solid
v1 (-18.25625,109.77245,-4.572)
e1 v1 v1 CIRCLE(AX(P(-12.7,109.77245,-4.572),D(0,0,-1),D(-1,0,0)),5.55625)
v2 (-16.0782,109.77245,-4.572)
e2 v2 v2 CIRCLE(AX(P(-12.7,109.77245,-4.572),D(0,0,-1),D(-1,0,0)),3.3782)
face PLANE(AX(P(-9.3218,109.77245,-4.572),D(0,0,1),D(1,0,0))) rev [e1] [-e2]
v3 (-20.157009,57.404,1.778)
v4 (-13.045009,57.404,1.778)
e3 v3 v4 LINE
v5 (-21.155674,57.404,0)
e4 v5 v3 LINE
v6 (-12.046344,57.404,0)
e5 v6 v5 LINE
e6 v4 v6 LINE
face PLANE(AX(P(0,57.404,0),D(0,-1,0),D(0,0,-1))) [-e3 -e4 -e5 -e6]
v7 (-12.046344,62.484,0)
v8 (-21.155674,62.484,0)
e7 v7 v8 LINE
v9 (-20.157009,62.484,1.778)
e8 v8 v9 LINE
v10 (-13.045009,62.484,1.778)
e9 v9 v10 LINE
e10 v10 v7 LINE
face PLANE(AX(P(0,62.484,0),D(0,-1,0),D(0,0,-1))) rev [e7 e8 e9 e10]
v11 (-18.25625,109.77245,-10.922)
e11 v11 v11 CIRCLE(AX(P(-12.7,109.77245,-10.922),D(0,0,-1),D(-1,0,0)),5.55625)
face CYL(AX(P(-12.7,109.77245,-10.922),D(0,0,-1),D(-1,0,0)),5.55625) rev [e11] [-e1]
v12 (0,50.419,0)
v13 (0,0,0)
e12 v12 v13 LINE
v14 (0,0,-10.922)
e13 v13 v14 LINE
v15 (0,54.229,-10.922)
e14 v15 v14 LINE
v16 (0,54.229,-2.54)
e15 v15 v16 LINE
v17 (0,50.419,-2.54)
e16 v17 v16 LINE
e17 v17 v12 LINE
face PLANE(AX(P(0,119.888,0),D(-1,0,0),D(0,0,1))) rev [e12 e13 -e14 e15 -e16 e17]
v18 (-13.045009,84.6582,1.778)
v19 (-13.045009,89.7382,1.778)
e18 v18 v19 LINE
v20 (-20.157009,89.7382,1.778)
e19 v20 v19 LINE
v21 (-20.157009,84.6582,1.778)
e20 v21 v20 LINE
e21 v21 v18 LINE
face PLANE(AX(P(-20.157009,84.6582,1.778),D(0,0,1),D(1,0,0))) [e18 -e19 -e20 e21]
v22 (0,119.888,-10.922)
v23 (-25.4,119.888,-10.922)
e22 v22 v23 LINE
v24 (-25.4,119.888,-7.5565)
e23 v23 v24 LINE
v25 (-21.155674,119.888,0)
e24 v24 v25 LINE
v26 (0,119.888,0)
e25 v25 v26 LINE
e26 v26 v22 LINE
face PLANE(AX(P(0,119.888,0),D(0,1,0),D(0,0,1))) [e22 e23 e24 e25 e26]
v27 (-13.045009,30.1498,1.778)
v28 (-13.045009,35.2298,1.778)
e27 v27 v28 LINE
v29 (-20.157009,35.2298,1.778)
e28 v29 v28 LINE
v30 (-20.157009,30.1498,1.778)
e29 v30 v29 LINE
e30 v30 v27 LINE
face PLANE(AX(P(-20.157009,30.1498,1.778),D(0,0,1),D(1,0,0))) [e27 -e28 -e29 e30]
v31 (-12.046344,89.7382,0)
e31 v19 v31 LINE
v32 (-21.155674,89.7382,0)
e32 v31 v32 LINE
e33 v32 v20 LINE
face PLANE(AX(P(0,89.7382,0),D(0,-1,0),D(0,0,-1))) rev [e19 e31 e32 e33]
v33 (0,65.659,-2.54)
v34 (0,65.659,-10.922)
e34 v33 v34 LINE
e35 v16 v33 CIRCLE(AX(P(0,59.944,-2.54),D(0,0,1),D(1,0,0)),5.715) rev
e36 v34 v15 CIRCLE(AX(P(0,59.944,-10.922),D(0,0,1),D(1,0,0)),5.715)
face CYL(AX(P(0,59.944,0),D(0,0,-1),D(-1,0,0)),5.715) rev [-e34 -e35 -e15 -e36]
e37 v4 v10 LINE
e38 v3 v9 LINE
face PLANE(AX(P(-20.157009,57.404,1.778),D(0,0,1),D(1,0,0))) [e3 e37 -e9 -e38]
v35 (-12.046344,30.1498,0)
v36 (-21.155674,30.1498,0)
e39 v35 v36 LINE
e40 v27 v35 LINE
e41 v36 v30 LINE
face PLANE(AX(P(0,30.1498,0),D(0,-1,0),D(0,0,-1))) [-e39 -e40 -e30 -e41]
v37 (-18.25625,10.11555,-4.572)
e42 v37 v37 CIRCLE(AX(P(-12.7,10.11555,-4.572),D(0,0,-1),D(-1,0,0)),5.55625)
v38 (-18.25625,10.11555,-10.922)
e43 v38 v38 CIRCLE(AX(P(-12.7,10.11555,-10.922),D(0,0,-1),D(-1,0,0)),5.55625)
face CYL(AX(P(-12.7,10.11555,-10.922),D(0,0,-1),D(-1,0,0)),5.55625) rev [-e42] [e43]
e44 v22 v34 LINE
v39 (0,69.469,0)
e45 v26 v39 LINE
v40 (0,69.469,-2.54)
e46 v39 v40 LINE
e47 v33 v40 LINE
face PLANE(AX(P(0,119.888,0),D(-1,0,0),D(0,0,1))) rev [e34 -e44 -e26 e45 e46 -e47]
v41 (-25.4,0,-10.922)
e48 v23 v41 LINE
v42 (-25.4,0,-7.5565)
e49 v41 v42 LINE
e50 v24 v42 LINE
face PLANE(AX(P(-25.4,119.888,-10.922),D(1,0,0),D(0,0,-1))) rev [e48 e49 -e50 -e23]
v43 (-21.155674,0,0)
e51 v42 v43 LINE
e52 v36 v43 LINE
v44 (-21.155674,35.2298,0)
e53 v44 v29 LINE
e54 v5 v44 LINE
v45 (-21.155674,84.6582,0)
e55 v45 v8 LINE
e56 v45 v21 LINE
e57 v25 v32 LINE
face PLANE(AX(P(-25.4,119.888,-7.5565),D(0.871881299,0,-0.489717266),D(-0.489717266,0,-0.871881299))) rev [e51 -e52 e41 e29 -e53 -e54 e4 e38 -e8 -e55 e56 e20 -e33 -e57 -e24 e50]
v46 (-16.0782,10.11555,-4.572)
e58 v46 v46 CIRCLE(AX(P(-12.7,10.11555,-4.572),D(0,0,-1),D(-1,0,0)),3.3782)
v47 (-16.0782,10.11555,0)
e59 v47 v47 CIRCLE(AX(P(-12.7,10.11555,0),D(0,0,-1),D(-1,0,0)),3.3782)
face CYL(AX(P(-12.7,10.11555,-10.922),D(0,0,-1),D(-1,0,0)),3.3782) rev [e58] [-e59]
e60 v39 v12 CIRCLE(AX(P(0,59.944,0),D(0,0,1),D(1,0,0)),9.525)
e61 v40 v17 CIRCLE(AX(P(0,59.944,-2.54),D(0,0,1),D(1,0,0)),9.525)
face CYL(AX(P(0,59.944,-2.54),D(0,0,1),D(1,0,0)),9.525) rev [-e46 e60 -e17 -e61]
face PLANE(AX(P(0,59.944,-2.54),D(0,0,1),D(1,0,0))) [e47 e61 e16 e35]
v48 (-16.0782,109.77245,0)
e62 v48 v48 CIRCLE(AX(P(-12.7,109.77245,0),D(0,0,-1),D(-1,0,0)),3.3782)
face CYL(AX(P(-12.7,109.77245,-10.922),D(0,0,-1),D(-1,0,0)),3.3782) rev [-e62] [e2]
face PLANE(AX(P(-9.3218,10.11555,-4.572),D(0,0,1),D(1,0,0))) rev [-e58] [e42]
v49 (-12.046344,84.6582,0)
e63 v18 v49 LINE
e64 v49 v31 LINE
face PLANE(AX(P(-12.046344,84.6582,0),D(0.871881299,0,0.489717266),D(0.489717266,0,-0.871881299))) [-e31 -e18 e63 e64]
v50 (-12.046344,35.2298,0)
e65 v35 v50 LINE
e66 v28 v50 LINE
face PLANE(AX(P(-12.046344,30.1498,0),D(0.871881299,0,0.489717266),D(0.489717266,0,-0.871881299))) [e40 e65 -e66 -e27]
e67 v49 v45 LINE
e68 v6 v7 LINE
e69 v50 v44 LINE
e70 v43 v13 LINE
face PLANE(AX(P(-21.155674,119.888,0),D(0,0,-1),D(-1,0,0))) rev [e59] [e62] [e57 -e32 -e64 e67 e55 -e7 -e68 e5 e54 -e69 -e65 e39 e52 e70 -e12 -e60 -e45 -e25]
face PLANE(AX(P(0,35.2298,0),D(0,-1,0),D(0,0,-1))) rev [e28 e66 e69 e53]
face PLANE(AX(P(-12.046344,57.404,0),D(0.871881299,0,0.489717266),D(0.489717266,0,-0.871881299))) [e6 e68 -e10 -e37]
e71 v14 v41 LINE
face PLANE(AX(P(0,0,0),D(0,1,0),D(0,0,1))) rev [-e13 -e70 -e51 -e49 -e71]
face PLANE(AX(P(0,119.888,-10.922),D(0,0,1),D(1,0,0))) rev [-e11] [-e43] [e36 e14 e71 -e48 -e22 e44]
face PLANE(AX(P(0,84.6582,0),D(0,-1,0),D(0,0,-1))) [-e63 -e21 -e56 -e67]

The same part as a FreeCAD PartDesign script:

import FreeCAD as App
import Part
import Sketcher
Q = App.Units.Quantity


def add_polygon(sketch, points):
    """Adds a closed chain of lines whose ends are joined by coincident constraints."""
    first, n = sketch.GeometryCount, len(points)
    for a, b in zip(points, points[1:] + points[:1]):
        sketch.addGeometry(Part.LineSegment(App.Vector(*a, 0), App.Vector(*b, 0)), False)
    for i in range(n):
        sketch.addConstraint(Sketcher.Constraint("Coincident", first + i, 2, first + (i + 1) % n, 1))

doc = App.newDocument("Part")
params = doc.addObject("Spreadsheet::Sheet", "Params")
for row, (alias, value) in enumerate([
    ("sketch1_width", "1 in"),
    ("sketch1_height", "0.43 in"),
    ("pad1_length", "4.72 in"),
    ("sketch2_diameter", "0.266 in"),
    ("hole_diameter", "0.266 in"),
    ("hole_cbore_diameter", "0.4375 in"),
    ("hole_cbore_depth", "0.25 in"),
    ("sketch3_diameter", "0.45 in"),
    ("sketch4_width", "0.28 in"),
    ("pad2_length", "0.2 in"),
    ("linearpattern_pitch", "1.073 in"),
    ("linearpattern2_pitch", "1.073 in"),
    ("sketch5_diameter", "0.75 in"),
    ("pocket2_length", "0.1 in"),
], start=1):
    params.set(f"A{row}", alias)
    params.set(f"B{row}", "=" + value)
    params.setAlias(f"B{row}", alias)

body = doc.addObject("PartDesign::Body", "Body")

sketch1 = doc.addObject("Sketcher::SketchObject", "Sketch")
body.addObject(sketch1)
sketch1.AttachmentSupport = (doc.XZ_Plane, [""])
sketch1.MapMode = "FlatFace"
add_polygon(sketch1, [(0, 0), (0, -10.9), (-25.4, -10.9), (-25.4, -7.6), (-21.2, 0)])
sketch1.addConstraint([
    Sketcher.Constraint("Vertical", 0),
    Sketcher.Constraint("Horizontal", 1),
    Sketcher.Constraint("Vertical", 2),
    Sketcher.Constraint("Horizontal", 4),
    Sketcher.Constraint("Coincident", 4, 2, -1, 1),
    Sketcher.Constraint("DistanceX", 1, 2, 1, 1, Q("1 in")),
    Sketcher.Constraint("DistanceY", 0, 2, 0, 1, Q("0.43 in")),
    Sketcher.Constraint("DistanceY", 2, 1, 2, 2, Q("0.1325 in")),
    Sketcher.Constraint("Distance", 3, Q("8.666891 mm")),
])
sketch1.setExpression("Constraints[10]", "Params.sketch1_width")
sketch1.setExpression("Constraints[11]", "Params.sketch1_height")
pad1 = doc.addObject("PartDesign::Pad", "Pad")
body.addObject(pad1)
pad1.Profile = sketch1
pad1.setExpression("Length", "Params.pad1_length")
pad1.Reversed = True

sketch2 = doc.addObject("Sketcher::SketchObject", "Sketch001")
body.addObject(sketch2)
sketch2.AttachmentSupport = (doc.XY_Plane, [""])
sketch2.MapMode = "FlatFace"
sketch2.AttachmentOffset = App.Placement(App.Vector(0, 0, -0.43 * 25.4), App.Rotation())
sketch2.addGeometry([
    Part.Circle(App.Vector(-12.7, 109.8, 0), App.Vector(0, 0, 1), 3.4),
    Part.Circle(App.Vector(-12.7, 10.1, 0), App.Vector(0, 0, 1), 3.4),
], False)
sketch2.addConstraint([
    Sketcher.Constraint("Equal", 0, 1),
    Sketcher.Constraint("Vertical", 0, 3, 1, 3),
    Sketcher.Constraint("Diameter", 0, Q("0.266 in")),
    Sketcher.Constraint("DistanceX", 0, 3, -1, 1, Q("0.5 in")),
    Sketcher.Constraint("DistanceY", 1, 3, 0, 3, Q("3.9235 in")),
    Sketcher.Constraint("DistanceY", -1, 1, 0, 3, Q("109.77245 mm")),
])
sketch2.setExpression("Constraints[2]", "Params.sketch2_diameter")
doc.recompute()
hole = doc.addObject("PartDesign::Hole", "Hole")
body.addObject(hole)
hole.Profile = sketch2
hole.ThreadType = "None"
hole.setExpression("Diameter", "Params.hole_diameter")
hole.DepthType = "ThroughAll"
hole.HoleCutType = "Counterbore"
hole.setExpression("HoleCutDiameter", "Params.hole_cbore_diameter")
hole.setExpression("HoleCutDepth", "Params.hole_cbore_depth")
hole.Reversed = True

sketch3 = doc.addObject("Sketcher::SketchObject", "Sketch002")
body.addObject(sketch3)
sketch3.AttachmentSupport = (doc.XY_Plane, [""])
sketch3.MapMode = "FlatFace"
sketch3.AttachmentOffset = App.Placement(App.Vector(0, 0, -0.43 * 25.4), App.Rotation())
sketch3.addGeometry(Part.Circle(App.Vector(0, 60, 0), App.Vector(0, 0, 1), 6), False)
sketch3.addConstraint([
    Sketcher.Constraint("PointOnObject", 0, 3, -2),
    Sketcher.Constraint("Diameter", 0, Q("0.45 in")),
    Sketcher.Constraint("DistanceY", -1, 1, 0, 3, Q("2.36 in")),
])
sketch3.setExpression("Constraints[1]", "Params.sketch3_diameter")
pocket1 = doc.addObject("PartDesign::Pocket", "Pocket")
body.addObject(pocket1)
pocket1.Profile = sketch3
pocket1.Type = "ThroughAll"
pocket1.Reversed = True

sketch4 = doc.addObject("Sketcher::SketchObject", "Sketch003")
body.addObject(sketch4)
sketch4.AttachmentSupport = (doc.XZ_Plane, [""])
sketch4.MapMode = "FlatFace"
sketch4.AttachmentOffset = App.Placement(App.Vector(0, 0, -2.36 * 25.4), App.Rotation())
add_polygon(sketch4, [(-21.2, 0), (-20.2, 1.8), (-13, 1.8), (-12, 0)])
sketch4.addConstraint([
    Sketcher.Constraint("Horizontal", 1),
    Sketcher.Constraint("Horizontal", 3),
    Sketcher.Constraint("PointOnObject", 2, 2, -1),
    Sketcher.Constraint("Equal", 0, 2),
    Sketcher.Constraint("DistanceX", 1, 1, 1, 2, Q("0.28 in")),
    Sketcher.Constraint("DistanceY", -1, 1, 0, 2, Q("0.07 in")),
    Sketcher.Constraint("DistanceX", 3, 2, 3, 1, Q("9.10933 mm")),
    Sketcher.Constraint("DistanceX", 0, 2, -1, 1, Q("20.157009 mm")),
])
sketch4.setExpression("Constraints[8]", "Params.sketch4_width")
pad2 = doc.addObject("PartDesign::Pad", "Pad001")
body.addObject(pad2)
pad2.Profile = sketch4
pad2.setExpression("Length", "Params.pad2_length")
pad2.Midplane = True
doc.recompute()

linearpattern = doc.addObject("PartDesign::LinearPattern", "LinearPattern")
body.addObject(linearpattern)
linearpattern.Originals = [pad2]
linearpattern.Direction = (doc.Y_Axis, [""])
linearpattern.Mode = "offset"
linearpattern.setExpression("Offset", "Params.linearpattern_pitch")
linearpattern.Occurrences = 2
linearpattern.Reversed = True
body.Tip = linearpattern
doc.recompute()

linearpattern2 = doc.addObject("PartDesign::LinearPattern", "LinearPattern001")
body.addObject(linearpattern2)
linearpattern2.Originals = [pad2]
linearpattern2.Direction = (doc.Y_Axis, [""])
linearpattern2.Mode = "offset"
linearpattern2.setExpression("Offset", "Params.linearpattern2_pitch")
linearpattern2.Occurrences = 2
body.Tip = linearpattern2

sketch5 = doc.addObject("Sketcher::SketchObject", "Sketch004")
body.addObject(sketch5)
sketch5.AttachmentSupport = (doc.XY_Plane, [""])
sketch5.MapMode = "FlatFace"
sketch5.addGeometry(Part.Circle(App.Vector(0, 60, 0), App.Vector(0, 0, 1), 10), False)
sketch5.addConstraint([
    Sketcher.Constraint("PointOnObject", 0, 3, -2),
    Sketcher.Constraint("Diameter", 0, Q("0.75 in")),
    Sketcher.Constraint("DistanceY", -1, 1, 0, 3, Q("2.36 in")),
])
sketch5.setExpression("Constraints[1]", "Params.sketch5_diameter")
pocket2 = doc.addObject("PartDesign::Pocket", "Pocket001")
body.addObject(pocket2)
pocket2.Profile = sketch5
pocket2.setExpression("Length", "Params.pocket2_length")

doc.recompute()
